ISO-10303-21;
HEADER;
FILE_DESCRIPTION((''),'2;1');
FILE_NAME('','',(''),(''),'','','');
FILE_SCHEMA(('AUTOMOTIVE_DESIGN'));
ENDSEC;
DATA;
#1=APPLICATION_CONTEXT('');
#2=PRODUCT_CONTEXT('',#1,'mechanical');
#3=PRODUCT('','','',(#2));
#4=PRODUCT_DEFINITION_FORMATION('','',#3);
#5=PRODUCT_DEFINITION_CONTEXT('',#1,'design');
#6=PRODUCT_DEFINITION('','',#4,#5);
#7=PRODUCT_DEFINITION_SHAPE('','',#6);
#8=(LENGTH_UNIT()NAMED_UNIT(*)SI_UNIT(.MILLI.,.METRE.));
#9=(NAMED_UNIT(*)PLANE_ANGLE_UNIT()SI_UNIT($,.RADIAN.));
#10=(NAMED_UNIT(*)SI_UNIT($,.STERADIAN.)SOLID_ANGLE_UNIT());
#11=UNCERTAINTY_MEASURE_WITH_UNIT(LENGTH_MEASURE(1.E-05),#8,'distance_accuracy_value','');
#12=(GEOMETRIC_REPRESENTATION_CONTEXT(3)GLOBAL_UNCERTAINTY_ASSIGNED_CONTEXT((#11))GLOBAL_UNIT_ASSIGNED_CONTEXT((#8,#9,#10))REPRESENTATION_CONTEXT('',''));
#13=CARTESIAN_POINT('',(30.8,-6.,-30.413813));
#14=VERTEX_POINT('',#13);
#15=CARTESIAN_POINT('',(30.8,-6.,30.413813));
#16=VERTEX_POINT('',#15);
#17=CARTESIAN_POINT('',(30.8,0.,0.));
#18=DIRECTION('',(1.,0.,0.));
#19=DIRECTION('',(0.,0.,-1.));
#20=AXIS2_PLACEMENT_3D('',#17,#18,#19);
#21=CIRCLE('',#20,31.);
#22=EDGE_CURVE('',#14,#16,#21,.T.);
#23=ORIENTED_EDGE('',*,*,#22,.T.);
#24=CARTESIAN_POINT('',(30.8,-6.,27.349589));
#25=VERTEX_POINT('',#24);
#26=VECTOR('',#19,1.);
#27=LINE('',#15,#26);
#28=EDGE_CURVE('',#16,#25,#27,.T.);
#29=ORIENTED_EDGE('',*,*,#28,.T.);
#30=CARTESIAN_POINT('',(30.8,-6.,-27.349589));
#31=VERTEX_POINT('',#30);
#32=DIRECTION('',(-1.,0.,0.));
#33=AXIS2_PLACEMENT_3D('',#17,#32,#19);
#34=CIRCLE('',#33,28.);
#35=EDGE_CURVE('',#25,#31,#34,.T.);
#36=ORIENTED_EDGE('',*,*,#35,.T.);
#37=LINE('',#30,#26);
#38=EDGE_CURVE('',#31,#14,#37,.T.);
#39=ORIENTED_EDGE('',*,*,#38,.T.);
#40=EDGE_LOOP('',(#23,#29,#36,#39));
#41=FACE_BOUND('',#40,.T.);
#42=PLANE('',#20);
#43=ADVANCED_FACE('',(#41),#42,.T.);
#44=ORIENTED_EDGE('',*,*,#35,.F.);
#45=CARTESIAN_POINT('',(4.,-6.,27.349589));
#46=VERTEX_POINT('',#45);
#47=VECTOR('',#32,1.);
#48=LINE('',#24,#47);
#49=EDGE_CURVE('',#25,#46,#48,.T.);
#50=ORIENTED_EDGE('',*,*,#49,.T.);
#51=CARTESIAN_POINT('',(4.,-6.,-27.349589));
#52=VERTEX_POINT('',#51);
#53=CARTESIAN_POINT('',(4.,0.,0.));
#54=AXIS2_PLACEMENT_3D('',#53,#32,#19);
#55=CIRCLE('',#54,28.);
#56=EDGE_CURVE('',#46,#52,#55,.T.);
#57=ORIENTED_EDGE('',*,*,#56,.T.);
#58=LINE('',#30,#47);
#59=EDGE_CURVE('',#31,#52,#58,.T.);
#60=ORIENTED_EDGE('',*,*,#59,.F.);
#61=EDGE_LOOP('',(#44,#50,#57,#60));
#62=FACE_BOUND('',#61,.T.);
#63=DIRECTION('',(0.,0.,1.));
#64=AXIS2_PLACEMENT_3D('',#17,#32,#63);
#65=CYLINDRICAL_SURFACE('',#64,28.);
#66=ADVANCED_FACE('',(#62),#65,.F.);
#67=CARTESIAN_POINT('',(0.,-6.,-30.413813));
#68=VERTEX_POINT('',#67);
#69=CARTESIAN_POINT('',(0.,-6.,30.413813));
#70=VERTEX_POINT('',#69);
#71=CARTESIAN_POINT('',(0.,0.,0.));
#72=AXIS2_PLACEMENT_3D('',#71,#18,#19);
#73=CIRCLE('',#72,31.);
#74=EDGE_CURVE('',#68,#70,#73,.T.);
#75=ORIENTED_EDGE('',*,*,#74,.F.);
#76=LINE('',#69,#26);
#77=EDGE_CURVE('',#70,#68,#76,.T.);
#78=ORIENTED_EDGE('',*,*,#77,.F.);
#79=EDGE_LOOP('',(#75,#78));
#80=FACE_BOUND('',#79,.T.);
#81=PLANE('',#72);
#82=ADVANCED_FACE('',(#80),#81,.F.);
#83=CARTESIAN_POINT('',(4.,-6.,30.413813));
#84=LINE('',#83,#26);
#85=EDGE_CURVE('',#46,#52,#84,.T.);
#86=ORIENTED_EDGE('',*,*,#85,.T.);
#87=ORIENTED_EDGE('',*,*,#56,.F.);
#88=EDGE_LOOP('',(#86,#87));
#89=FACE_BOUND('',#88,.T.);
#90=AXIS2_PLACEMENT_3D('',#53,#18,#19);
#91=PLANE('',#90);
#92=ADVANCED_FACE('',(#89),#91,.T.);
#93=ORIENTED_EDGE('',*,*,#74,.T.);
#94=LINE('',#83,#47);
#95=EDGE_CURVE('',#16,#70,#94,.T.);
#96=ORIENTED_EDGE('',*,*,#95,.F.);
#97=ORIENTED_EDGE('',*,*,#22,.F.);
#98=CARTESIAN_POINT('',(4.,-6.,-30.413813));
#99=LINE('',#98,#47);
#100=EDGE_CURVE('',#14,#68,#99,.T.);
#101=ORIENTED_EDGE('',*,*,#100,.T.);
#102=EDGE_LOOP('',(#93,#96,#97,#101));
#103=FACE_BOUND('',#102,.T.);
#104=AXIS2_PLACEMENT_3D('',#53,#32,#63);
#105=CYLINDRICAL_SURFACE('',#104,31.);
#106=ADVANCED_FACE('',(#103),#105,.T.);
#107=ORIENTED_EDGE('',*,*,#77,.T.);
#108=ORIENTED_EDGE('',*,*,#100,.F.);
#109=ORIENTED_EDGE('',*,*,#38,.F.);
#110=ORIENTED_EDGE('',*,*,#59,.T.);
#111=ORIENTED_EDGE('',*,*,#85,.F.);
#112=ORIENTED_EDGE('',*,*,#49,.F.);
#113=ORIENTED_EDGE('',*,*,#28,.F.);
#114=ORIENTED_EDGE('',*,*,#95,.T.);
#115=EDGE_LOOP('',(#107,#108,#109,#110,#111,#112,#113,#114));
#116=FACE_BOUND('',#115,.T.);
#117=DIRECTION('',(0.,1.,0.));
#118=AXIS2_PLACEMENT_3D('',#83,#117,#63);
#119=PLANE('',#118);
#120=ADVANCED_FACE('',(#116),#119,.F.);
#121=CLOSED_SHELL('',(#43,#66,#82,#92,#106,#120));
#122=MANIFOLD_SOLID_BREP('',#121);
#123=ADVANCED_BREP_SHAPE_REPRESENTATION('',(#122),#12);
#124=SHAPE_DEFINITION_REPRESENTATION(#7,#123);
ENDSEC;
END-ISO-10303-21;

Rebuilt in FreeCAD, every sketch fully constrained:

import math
import FreeCAD as App
import Part
import Sketcher

V = App.Vector
Q = App.Units.Quantity

doc = App.newDocument("Part")
body = doc.addObject("PartDesign::Body", "Body")

# Sketch on YZ plane
sketch1 = body.newObject("Sketcher::SketchObject", "Sketch")
sketch1.AttachmentSupport = (doc.getObject("YZ_Plane"), [""])
sketch1.MapMode = "FlatFace"
sketch1.addGeometry(Part.LineSegment(V(-6, 30, 0), V(-6, -30, 0)), False)
sketch1.addGeometry(Part.ArcOfCircle(Part.Circle(V(0, 0, 0), V(0, 0, 1), 31), math.radians(-101), math.radians(101)), False)
sketch1.addConstraint(Sketcher.Constraint("Coincident", 0, 1, 1, 2))
sketch1.addConstraint(Sketcher.Constraint("Coincident", 1, 1, 0, 2))
sketch1.addConstraint(Sketcher.Constraint("Vertical", 0))
sketch1.addConstraint(Sketcher.Constraint("Coincident", 1, 3, -1, 1))
sketch1.addConstraint(Sketcher.Constraint("Radius", 1, Q("31 mm")))
sketch1.addConstraint(Sketcher.Constraint("DistanceX", 0, 1, -1, 1, Q("6 mm")))
pad1 = body.newObject("PartDesign::Pad", "Pad")
pad1.Profile = sketch1
pad1.Length = 4

# Sketch on YZ plane
sketch2 = body.newObject("Sketcher::SketchObject", "Sketch001")
sketch2.AttachmentSupport = (doc.getObject("YZ_Plane"), [""])
sketch2.MapMode = "FlatFace"
sketch2.AttachmentOffset = App.Placement(V(0, 0, 4), App.Rotation())
sketch2.addGeometry(Part.LineSegment(V(-6, 30.4, 0), V(-6, 27.3, 0)), False)
sketch2.addGeometry(Part.ArcOfCircle(Part.Circle(V(0, 0, 0), V(0, 0, 1), 28), math.radians(-102), math.radians(102)), False)
sketch2.addGeometry(Part.LineSegment(V(-6, -27.3, 0), V(-6, -30.4, 0)), False)
sketch2.addGeometry(Part.ArcOfCircle(Part.Circle(V(0, 0, 0), V(0, 0, 1), 31), math.radians(-101), math.radians(101)), False)
sketch2.addConstraint(Sketcher.Constraint("Coincident", 0, 2, 1, 2))
sketch2.addConstraint(Sketcher.Constraint("Coincident", 1, 1, 2, 1))
sketch2.addConstraint(Sketcher.Constraint("Coincident", 2, 2, 3, 1))
sketch2.addConstraint(Sketcher.Constraint("Coincident", 3, 2, 0, 1))
sketch2.addConstraint(Sketcher.Constraint("Vertical", 0))
sketch2.addConstraint(Sketcher.Constraint("Vertical", 2))
sketch2.addConstraint(Sketcher.Constraint("Coincident", 1, 3, -1, 1))
sketch2.addConstraint(Sketcher.Constraint("Coincident", 3, 3, -1, 1))
sketch2.addConstraint(Sketcher.Constraint("Vertical", 0, 2, 1, 1))
sketch2.addConstraint(Sketcher.Constraint("Radius", 1, Q("28 mm")))
sketch2.addConstraint(Sketcher.Constraint("Radius", 3, Q("31 mm")))
sketch2.addConstraint(Sketcher.Constraint("DistanceX", 0, 2, -1, 1, Q("6 mm")))
pad2 = body.newObject("PartDesign::Pad", "Pad001")
pad2.Profile = sketch2
pad2.Length = 26.8

doc.recompute()
